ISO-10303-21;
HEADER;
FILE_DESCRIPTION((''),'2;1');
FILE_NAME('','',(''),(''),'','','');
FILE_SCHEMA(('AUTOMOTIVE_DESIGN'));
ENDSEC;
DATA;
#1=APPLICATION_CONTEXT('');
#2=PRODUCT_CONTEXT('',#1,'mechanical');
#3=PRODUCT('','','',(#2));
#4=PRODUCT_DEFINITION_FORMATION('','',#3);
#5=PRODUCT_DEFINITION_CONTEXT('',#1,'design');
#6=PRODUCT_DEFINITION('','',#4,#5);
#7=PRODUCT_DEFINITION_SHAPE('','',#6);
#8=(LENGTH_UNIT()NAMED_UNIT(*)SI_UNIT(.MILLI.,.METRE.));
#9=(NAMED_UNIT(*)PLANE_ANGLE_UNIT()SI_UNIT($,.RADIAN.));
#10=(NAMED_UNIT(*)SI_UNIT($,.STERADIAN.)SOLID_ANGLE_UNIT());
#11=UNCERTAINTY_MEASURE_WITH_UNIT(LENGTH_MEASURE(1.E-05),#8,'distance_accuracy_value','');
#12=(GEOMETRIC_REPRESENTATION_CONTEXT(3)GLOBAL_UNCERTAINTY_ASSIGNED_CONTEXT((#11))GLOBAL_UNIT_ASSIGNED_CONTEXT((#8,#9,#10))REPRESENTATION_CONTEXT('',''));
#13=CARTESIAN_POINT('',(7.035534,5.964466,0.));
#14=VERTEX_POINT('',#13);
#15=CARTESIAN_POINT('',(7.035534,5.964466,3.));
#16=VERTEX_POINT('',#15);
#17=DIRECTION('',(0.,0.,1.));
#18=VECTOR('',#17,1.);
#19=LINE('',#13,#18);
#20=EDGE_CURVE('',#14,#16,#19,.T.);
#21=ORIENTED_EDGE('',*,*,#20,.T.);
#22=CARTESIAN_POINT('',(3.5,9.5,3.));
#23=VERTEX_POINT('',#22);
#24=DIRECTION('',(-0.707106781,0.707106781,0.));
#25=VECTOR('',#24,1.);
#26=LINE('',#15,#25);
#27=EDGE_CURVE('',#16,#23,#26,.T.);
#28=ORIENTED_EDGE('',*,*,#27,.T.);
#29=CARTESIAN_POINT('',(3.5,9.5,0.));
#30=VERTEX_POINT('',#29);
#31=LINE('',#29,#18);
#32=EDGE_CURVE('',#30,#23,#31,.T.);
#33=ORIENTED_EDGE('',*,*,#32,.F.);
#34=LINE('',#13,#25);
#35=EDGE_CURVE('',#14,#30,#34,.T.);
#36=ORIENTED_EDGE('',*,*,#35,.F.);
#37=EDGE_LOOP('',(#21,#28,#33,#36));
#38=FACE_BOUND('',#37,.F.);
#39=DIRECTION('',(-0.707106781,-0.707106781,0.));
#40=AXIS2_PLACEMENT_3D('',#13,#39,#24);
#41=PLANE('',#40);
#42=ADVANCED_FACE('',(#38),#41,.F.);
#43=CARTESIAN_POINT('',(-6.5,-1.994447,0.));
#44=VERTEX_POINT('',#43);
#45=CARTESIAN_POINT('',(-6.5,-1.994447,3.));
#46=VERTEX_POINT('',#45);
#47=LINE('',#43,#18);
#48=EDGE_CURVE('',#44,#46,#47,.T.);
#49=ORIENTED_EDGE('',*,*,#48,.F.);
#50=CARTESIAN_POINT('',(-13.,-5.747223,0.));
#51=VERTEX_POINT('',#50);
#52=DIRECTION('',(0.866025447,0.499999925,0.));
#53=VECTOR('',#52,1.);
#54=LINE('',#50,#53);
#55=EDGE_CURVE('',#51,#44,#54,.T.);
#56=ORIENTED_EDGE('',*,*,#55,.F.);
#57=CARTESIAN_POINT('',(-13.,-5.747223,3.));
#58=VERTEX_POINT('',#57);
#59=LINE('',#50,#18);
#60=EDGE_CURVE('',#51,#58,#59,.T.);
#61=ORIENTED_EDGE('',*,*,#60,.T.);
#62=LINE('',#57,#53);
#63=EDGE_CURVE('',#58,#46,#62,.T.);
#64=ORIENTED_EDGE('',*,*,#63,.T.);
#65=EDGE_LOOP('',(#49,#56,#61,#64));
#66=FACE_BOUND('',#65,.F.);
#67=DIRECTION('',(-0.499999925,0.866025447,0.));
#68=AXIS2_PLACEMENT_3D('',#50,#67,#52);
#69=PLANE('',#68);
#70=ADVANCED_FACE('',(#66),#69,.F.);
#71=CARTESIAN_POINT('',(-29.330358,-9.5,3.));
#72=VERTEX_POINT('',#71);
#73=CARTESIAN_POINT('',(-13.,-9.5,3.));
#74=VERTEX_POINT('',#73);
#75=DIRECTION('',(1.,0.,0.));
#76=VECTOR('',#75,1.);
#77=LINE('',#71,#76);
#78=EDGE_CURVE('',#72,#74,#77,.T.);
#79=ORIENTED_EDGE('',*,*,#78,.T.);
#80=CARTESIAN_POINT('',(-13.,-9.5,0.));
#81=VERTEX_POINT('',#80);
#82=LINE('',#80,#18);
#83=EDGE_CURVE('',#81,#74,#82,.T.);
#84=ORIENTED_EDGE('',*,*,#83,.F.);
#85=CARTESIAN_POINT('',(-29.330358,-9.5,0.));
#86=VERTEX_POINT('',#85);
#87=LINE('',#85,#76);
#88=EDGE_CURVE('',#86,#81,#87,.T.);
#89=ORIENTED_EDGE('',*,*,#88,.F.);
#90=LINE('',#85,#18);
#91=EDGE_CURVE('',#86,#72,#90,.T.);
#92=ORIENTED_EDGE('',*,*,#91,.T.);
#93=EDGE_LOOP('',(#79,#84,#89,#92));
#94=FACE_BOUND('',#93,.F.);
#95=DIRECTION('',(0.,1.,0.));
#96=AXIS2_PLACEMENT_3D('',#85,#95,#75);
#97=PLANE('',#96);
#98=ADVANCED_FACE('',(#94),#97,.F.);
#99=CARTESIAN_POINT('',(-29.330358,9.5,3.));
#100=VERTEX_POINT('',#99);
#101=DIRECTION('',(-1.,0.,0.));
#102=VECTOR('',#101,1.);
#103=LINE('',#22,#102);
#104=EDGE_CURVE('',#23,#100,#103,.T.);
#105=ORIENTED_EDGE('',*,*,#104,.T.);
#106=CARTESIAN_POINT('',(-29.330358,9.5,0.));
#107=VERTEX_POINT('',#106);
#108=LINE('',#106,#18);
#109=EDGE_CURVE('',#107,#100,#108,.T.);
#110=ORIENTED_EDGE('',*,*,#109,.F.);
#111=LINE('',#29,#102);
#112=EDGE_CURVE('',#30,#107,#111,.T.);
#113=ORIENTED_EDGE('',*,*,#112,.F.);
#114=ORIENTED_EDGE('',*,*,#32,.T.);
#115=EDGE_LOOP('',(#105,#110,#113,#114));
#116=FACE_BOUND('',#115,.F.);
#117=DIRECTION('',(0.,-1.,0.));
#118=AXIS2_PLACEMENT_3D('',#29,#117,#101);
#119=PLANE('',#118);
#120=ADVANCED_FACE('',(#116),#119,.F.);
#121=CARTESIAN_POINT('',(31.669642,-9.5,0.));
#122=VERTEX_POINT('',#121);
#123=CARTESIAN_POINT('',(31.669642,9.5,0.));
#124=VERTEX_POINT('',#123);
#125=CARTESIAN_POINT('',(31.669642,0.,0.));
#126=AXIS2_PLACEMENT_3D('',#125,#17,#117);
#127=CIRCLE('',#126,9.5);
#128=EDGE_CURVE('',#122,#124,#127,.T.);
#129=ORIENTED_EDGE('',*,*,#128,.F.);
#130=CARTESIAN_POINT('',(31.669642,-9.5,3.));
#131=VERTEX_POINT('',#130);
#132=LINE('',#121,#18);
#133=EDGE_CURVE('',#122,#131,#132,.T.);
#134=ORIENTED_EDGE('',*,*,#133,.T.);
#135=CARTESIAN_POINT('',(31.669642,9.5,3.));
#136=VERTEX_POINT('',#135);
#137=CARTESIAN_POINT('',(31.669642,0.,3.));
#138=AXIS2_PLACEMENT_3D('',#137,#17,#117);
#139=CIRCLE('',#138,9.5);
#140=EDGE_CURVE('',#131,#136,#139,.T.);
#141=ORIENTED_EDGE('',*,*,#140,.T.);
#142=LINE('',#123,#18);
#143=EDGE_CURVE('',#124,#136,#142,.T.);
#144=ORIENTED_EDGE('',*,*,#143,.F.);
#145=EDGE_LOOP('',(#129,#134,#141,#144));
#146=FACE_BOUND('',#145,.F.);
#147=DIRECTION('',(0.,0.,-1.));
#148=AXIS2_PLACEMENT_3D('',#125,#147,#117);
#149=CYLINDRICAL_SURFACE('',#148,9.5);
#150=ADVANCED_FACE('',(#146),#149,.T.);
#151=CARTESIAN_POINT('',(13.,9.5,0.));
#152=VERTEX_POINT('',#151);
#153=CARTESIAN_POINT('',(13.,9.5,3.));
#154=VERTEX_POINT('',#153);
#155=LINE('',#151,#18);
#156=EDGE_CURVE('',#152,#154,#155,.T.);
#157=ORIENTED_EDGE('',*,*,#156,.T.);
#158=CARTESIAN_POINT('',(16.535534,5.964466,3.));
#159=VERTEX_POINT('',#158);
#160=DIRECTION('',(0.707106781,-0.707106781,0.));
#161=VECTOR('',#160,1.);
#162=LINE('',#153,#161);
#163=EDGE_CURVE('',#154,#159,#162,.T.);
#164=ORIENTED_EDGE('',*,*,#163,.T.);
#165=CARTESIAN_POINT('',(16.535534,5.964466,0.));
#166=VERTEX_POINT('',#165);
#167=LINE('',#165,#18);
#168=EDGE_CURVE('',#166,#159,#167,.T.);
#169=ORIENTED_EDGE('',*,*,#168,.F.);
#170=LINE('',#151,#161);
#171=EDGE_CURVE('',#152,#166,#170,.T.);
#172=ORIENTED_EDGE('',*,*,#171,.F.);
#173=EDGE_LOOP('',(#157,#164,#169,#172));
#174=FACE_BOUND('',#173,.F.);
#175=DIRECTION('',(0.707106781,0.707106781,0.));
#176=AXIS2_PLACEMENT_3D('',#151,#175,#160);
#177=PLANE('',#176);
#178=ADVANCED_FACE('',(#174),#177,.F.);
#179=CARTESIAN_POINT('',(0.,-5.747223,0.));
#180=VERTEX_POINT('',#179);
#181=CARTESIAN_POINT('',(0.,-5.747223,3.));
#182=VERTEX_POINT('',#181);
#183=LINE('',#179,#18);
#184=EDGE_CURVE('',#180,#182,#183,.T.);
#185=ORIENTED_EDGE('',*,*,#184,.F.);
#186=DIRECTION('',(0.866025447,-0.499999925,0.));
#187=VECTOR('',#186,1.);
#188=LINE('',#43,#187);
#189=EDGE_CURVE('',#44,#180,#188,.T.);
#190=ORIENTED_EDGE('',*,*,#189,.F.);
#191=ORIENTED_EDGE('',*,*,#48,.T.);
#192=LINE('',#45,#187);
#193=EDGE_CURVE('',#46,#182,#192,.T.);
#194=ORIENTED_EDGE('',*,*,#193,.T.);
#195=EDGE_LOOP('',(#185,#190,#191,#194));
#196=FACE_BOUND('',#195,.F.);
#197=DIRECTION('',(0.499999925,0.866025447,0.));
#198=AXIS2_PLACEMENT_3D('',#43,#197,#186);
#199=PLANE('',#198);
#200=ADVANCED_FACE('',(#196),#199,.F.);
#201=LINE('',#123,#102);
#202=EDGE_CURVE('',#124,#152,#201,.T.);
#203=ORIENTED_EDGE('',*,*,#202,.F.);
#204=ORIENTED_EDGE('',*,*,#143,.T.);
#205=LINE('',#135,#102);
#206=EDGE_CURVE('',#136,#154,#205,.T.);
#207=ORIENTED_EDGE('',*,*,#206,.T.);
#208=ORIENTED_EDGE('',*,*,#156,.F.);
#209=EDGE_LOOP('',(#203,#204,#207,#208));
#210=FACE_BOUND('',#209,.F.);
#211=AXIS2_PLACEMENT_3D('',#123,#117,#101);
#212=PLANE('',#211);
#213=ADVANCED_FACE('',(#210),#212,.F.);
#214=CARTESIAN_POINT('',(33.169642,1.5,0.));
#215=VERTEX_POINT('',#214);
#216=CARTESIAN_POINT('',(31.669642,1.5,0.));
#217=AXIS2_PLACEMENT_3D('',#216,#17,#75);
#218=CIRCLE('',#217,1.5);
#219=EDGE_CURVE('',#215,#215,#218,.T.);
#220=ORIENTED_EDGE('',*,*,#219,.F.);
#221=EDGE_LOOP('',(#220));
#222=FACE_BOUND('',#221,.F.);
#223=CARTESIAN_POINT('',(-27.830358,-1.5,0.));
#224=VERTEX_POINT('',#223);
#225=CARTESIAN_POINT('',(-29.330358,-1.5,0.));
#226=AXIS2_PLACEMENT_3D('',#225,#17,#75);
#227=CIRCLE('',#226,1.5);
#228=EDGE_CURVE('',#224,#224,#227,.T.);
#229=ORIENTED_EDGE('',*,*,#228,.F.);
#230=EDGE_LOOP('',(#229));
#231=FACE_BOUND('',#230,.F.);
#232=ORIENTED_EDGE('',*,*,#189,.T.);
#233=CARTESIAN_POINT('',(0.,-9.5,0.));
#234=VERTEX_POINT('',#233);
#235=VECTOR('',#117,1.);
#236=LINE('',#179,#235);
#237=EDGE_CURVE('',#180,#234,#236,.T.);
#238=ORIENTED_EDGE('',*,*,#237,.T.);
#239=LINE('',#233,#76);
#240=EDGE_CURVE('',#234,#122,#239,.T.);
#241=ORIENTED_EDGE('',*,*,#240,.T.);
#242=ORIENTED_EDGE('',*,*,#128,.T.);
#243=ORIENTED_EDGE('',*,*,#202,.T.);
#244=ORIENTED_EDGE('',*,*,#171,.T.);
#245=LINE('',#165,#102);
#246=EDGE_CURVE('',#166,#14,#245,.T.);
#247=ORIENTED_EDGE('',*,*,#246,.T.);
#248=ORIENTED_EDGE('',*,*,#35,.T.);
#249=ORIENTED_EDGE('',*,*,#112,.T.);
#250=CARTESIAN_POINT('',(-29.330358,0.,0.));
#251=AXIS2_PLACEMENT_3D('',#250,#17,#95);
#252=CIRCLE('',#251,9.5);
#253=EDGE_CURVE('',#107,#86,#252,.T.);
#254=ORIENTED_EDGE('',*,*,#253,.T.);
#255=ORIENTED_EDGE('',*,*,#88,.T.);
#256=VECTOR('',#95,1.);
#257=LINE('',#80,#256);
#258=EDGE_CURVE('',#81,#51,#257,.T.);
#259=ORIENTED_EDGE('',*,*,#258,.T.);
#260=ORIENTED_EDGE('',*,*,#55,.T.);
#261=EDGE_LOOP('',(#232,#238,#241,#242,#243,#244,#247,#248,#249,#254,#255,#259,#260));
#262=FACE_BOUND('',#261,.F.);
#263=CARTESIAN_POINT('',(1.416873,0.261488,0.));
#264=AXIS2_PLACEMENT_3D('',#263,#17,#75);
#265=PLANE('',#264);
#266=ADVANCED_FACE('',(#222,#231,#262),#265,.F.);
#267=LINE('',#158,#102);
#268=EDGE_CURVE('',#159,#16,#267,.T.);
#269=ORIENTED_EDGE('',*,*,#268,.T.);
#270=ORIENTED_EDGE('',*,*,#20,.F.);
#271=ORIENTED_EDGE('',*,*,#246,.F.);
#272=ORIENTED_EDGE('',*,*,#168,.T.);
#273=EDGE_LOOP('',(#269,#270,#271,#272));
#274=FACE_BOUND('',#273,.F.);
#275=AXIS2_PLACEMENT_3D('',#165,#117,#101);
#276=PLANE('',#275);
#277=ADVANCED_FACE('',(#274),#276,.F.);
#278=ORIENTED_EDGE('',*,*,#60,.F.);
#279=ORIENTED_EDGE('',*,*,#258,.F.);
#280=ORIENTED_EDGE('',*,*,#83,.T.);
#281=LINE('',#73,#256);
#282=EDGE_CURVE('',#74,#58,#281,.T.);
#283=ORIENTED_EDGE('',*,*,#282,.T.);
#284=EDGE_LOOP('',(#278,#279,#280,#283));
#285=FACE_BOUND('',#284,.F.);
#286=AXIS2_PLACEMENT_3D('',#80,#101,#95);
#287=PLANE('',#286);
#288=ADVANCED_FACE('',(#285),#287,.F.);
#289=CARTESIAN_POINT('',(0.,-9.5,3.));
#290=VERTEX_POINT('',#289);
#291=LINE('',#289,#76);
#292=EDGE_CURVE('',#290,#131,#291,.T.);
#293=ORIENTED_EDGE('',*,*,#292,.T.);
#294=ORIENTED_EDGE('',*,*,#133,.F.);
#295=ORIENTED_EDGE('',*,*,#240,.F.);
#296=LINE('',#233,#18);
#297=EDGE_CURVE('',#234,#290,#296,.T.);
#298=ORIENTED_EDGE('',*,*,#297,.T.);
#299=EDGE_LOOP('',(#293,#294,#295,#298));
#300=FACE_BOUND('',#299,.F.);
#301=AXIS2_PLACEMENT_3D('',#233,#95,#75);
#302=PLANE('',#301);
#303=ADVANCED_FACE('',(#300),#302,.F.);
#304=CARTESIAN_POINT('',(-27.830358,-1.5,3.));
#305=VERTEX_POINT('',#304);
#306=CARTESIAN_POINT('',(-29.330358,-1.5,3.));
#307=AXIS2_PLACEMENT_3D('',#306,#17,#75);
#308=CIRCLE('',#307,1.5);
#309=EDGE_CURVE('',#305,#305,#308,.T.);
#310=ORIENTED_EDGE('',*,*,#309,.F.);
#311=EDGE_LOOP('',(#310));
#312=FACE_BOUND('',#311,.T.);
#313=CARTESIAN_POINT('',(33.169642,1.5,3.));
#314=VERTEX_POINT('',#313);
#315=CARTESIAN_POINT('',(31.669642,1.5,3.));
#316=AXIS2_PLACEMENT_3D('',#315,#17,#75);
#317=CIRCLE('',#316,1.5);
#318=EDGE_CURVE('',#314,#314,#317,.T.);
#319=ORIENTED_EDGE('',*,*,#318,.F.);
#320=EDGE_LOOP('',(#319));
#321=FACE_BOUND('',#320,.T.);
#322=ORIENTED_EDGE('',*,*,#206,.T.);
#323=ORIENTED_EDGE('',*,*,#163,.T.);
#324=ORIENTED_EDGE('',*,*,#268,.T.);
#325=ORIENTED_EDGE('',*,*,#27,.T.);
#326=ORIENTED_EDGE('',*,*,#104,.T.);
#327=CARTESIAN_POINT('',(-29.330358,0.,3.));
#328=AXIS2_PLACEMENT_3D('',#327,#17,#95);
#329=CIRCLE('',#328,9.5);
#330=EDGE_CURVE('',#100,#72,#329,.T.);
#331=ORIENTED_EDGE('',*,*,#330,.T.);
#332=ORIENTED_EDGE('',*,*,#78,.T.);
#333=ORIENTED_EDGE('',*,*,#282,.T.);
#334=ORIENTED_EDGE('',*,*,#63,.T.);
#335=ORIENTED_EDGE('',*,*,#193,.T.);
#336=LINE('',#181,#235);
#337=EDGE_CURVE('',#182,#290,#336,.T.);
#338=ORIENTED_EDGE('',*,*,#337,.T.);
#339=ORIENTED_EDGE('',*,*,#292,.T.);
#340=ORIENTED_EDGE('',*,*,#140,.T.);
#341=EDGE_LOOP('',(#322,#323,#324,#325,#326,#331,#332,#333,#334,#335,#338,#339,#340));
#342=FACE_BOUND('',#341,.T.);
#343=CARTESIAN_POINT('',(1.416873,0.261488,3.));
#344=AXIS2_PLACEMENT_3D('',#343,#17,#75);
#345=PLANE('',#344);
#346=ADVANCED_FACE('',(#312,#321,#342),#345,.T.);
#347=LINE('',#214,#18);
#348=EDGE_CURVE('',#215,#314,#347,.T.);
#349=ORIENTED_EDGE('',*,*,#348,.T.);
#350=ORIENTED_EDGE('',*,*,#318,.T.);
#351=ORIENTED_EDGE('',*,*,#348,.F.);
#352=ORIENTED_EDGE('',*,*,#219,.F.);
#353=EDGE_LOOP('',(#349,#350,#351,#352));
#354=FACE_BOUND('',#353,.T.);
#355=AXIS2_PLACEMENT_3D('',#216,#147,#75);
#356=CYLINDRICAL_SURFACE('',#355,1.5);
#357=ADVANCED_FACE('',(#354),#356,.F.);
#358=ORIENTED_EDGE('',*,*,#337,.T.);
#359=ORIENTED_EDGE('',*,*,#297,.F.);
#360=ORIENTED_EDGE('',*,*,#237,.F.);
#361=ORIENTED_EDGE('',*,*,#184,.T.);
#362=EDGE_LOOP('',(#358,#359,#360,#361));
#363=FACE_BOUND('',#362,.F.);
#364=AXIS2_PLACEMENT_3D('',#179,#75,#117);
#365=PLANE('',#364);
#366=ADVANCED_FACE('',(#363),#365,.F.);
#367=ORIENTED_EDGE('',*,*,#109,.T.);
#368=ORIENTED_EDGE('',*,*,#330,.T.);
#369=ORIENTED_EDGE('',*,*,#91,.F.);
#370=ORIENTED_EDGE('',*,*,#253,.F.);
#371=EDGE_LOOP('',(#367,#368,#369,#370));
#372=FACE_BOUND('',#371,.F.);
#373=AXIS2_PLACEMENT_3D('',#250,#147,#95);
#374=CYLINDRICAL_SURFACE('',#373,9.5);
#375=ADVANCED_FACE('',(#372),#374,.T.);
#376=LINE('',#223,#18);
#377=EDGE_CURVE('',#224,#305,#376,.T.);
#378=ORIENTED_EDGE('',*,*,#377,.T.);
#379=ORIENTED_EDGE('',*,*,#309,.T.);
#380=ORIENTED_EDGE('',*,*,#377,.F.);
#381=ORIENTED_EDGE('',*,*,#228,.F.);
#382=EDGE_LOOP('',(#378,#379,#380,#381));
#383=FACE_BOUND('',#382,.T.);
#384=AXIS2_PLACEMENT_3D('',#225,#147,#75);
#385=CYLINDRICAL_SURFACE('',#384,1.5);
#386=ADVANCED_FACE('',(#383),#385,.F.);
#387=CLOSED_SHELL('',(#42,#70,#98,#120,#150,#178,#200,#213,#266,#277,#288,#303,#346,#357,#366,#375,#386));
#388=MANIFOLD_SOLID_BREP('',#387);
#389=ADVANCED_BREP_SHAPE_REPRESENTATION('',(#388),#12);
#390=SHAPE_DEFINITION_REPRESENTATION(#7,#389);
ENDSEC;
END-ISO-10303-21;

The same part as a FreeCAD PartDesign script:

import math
import FreeCAD as App
import Part
import Sketcher

V = App.Vector
Q = App.Units.Quantity

doc = App.newDocument("Part")
body = doc.addObject("PartDesign::Body", "Body")

# Sketch on XY plane
sketch1 = body.newObject("Sketcher::SketchObject", "Sketch")
sketch1.AttachmentSupport = (doc.getObject("XY_Plane"), [""])
sketch1.MapMode = "FlatFace"
sketch1.addGeometry(Part.ArcOfCircle(Part.Circle(V(-29.3, 0, 0), V(0, 0, 1), 9.5), math.radians(90), math.radians(270)), False)
sketch1.addGeometry(Part.LineSegment(V(-29.3, -9.5, 0), V(-13, -9.5, 0)), False)
sketch1.addGeometry(Part.LineSegment(V(-13, -9.5, 0), V(-13, -5.7, 0)), False)
sketch1.addGeometry(Part.LineSegment(V(-13, -5.7, 0), V(-6.5, -2, 0)), False)
sketch1.addGeometry(Part.LineSegment(V(-6.5, -2, 0), V(0, -5.7, 0)), False)
sketch1.addGeometry(Part.LineSegment(V(0, -5.7, 0), V(0, -9.5, 0)), False)
sketch1.addGeometry(Part.LineSegment(V(0, -9.5, 0), V(31.7, -9.5, 0)), False)
sketch1.addGeometry(Part.ArcOfCircle(Part.Circle(V(31.7, 0, 0), V(0, 0, 1), 9.5), math.radians(-90), math.radians(90)), False)
sketch1.addGeometry(Part.LineSegment(V(31.7, 9.5, 0), V(13, 9.5, 0)), False)
sketch1.addGeometry(Part.LineSegment(V(13, 9.5, 0), V(16.5, 6, 0)), False)
sketch1.addGeometry(Part.LineSegment(V(16.5, 6, 0), V(7, 6, 0)), False)
sketch1.addGeometry(Part.LineSegment(V(7, 6, 0), V(3.5, 9.5, 0)), False)
sketch1.addGeometry(Part.LineSegment(V(3.5, 9.5, 0), V(-29.3, 9.5, 0)), False)
sketch1.addGeometry(Part.Circle(V(-29.3, -1.5, 0), V(0, 0, 1), 1.5), False)
sketch1.addGeometry(Part.Circle(V(31.7, 1.5, 0), V(0, 0, 1), 1.5), False)
sketch1.addConstraint(Sketcher.Constraint("Tangent", 0, 2, 1, 1))
sketch1.addConstraint(Sketcher.Constraint("Coincident", 1, 2, 2, 1))
sketch1.addConstraint(Sketcher.Constraint("Coincident", 2, 2, 3, 1))
sketch1.addConstraint(Sketcher.Constraint("Coincident", 3, 2, 4, 1))
sketch1.addConstraint(Sketcher.Constraint("Coincident", 4, 2, 5, 1))
sketch1.addConstraint(Sketcher.Constraint("Coincident", 5, 2, 6, 1))
sketch1.addConstraint(Sketcher.Constraint("Tangent", 6, 2, 7, 1))
sketch1.addConstraint(Sketcher.Constraint("Tangent", 7, 2, 8, 1))
sketch1.addConstraint(Sketcher.Constraint("Coincident", 8, 2, 9, 1))
sketch1.addConstraint(Sketcher.Constraint("Coincident", 9, 2, 10, 1))
sketch1.addConstraint(Sketcher.Constraint("Coincident", 10, 2, 11, 1))
sketch1.addConstraint(Sketcher.Constraint("Coincident", 11, 2, 12, 1))
sketch1.addConstraint(Sketcher.Constraint("Tangent", 12, 2, 0, 1))
sketch1.addConstraint(Sketcher.Constraint("Horizontal", 1))
sketch1.addConstraint(Sketcher.Constraint("Vertical", 2))
sketch1.addConstraint(Sketcher.Constraint("Vertical", 5))
sketch1.addConstraint(Sketcher.Constraint("Horizontal", 6))
sketch1.addConstraint(Sketcher.Constraint("Horizontal", 8))
sketch1.addConstraint(Sketcher.Constraint("Horizontal", 10))
sketch1.addConstraint(Sketcher.Constraint("Horizontal", 12))
sketch1.addConstraint(Sketcher.Constraint("Equal", 0, 7))
sketch1.addConstraint(Sketcher.Constraint("Equal", 13, 14))
sketch1.addConstraint(Sketcher.Constraint("Symmetric", 1, 2, 8, 2, -1, 1))
sketch1.addConstraint(Sketcher.Constraint("PointOnObject", 0, 3, -1))
sketch1.addConstraint(Sketcher.Constraint("PointOnObject", 4, 2, -2))
sketch1.addConstraint(Sketcher.Constraint("Parallel", 9, 11))
sketch1.addConstraint(Sketcher.Constraint("Horizontal", 2, 2, 4, 2))
sketch1.addConstraint(Sketcher.Constraint("Vertical", 0, 3, 13, 3))
sketch1.addConstraint(Sketcher.Constraint("Vertical", 7, 3, 14, 3))
sketch1.addConstraint(Sketcher.Constraint("Equal", 3, 4))
sketch1.addConstraint(Sketcher.Constraint("Diameter", 13, Q("3 mm")))
sketch1.addConstraint(Sketcher.Constraint("Radius", 0, Q("9.5 mm")))
sketch1.addConstraint(Sketcher.Constraint("Angle", 3, Q("29.999995 deg")))
sketch1.addConstraint(Sketcher.Constraint("Angle", 9, Q("-45 deg")))
sketch1.addConstraint(Sketcher.Constraint("Distance", 9, Q("5 mm")))
sketch1.addConstraint(Sketcher.Constraint("DistanceX", 10, 2, 10, 1, Q("9.5 mm")))
sketch1.addConstraint(Sketcher.Constraint("DistanceX", 1, 2, -1, 1, Q("13 mm")))
sketch1.addConstraint(Sketcher.Constraint("DistanceX", 0, 3, 7, 3, Q("61 mm")))
sketch1.addConstraint(Sketcher.Constraint("DistanceY", 13, 3, 14, 3, Q("3 mm")))
sketch1.addConstraint(Sketcher.Constraint("DistanceY", 0, 2, 13, 3, Q("8 mm")))
sketch1.addConstraint(Sketcher.Constraint("DistanceX", 1, 1, 1, 2, Q("16.330358 mm")))
sketch1.addConstraint(Sketcher.Constraint("DistanceY", 2, 1, 2, 2, Q("3.752777 mm")))
pad1 = body.newObject("PartDesign::Pad", "Pad")
pad1.Profile = sketch1
pad1.Length = 3

doc.recompute()
